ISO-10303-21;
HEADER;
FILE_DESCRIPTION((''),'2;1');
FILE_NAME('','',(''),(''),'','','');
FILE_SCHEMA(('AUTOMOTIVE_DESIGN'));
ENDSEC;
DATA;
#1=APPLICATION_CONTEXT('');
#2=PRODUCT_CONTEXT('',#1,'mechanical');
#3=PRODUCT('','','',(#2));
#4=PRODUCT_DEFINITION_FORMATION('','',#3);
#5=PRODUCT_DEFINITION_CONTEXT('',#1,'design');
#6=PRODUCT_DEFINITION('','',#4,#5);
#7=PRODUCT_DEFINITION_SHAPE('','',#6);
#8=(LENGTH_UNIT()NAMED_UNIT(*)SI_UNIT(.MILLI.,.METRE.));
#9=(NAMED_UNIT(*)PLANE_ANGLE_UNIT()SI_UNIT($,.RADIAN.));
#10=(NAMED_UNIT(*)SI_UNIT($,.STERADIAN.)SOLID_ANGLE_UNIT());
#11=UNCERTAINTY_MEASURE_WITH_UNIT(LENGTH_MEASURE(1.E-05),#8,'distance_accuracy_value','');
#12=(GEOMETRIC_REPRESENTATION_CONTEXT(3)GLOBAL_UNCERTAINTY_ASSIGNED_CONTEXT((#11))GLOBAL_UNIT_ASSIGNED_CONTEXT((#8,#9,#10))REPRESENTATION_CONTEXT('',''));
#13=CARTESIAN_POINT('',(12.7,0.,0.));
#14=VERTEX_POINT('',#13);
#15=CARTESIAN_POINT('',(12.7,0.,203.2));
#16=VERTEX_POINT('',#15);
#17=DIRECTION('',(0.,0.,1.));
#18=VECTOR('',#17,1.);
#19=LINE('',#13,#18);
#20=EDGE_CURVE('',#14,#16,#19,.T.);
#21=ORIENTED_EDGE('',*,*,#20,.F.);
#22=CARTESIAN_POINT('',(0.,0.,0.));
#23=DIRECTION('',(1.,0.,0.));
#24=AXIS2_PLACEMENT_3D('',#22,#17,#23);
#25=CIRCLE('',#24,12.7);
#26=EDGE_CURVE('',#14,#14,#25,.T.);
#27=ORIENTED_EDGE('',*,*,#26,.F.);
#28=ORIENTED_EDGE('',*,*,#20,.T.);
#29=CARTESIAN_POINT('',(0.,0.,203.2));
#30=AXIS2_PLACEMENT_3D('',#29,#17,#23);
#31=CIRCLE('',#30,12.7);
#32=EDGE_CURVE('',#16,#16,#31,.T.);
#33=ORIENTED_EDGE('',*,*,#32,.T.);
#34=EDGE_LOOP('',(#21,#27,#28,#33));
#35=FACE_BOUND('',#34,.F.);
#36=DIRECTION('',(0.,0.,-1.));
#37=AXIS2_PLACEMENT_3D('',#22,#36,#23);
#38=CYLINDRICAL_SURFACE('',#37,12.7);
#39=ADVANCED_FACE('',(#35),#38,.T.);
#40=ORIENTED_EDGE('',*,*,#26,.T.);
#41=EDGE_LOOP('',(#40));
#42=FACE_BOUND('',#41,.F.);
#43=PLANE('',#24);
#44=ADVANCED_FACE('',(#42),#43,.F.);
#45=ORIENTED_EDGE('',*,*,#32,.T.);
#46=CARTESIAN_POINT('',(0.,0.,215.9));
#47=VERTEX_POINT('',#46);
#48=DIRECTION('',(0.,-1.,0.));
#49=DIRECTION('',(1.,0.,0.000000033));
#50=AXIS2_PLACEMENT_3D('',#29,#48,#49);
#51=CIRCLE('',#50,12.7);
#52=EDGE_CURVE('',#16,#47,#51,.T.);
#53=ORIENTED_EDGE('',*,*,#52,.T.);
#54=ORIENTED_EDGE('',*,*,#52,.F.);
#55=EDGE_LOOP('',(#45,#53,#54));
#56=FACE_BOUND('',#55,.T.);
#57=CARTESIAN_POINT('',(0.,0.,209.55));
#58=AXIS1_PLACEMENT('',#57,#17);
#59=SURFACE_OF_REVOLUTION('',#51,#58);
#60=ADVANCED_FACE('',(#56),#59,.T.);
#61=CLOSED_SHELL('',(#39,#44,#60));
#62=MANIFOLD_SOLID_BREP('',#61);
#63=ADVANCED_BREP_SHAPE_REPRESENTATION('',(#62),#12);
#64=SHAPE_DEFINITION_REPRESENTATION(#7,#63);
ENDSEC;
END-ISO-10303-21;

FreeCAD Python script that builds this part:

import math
import FreeCAD as App
import Part
import Sketcher
Q = App.Units.Quantity

doc = App.newDocument("Part")
params = doc.addObject("Spreadsheet::Sheet", "Params")
for row, (alias, value) in enumerate([
    ("sketch1_diameter", "1 in"),
    ("pad1_length", "8 in"),
    ("sketch2_radius", "0.5 in"),
    ("revolution_angle", "360 deg"),
], start=1):
    params.set(f"A{row}", alias)
    params.set(f"B{row}", "=" + value)
    params.setAlias(f"B{row}", alias)

body = doc.addObject("PartDesign::Body", "Body")

# Sketch on XY plane
sketch1 = body.newObject("Sketcher::SketchObject", "Sketch")
sketch1.AttachmentSupport = (doc.getObject("XY_Plane"), [""])
sketch1.MapMode = "FlatFace"
sketch1.addGeometry(Part.Circle(App.Vector(0, 0, 0), App.Vector(0, 0, 1), 13), False)
sketch1.addConstraint([
    Sketcher.Constraint("Coincident", 0, 3, -1, 1),
    Sketcher.Constraint("Diameter", 0, Q("1 in")),
])
sketch1.setExpression("Constraints[1]", "Params.sketch1_diameter")
pad1 = body.newObject("PartDesign::Pad", "Pad")
pad1.Profile = sketch1
pad1.setExpression("Length", "Params.pad1_length")

# Sketch on XZ plane
sketch2 = body.newObject("Sketcher::SketchObject", "Sketch001")
sketch2.AttachmentSupport = (doc.getObject("XZ_Plane"), [""])
sketch2.MapMode = "FlatFace"
sketch2.addGeometry([
    Part.LineSegment(App.Vector(0, 216, 0), App.Vector(0, 203, 0)),
    Part.LineSegment(App.Vector(0, 203, 0), App.Vector(13, 203, 0)),
    Part.ArcOfCircle(Part.Circle(App.Vector(0, 203, 0), App.Vector(0, 0, 1), 13), math.radians(0), math.radians(90)),
], False)
sketch2.addConstraint([
    Sketcher.Constraint("Coincident", 0, 2, 1, 1),
    Sketcher.Constraint("Coincident", 1, 2, 2, 1),
    Sketcher.Constraint("Coincident", 2, 2, 0, 1),
    Sketcher.Constraint("Vertical", 0),
    Sketcher.Constraint("Horizontal", 1),
    Sketcher.Constraint("Coincident", 0, 2, 2, 3),
    Sketcher.Constraint("PointOnObject", 2, 3, -2),
    Sketcher.Constraint("Radius", 2, Q("0.5 in")),
    Sketcher.Constraint("DistanceY", -1, 1, 2, 3, Q("8 in")),
])
sketch2.setExpression("Constraints[7]", "Params.sketch2_radius")
revolution = body.newObject("PartDesign::Revolution", "Revolution")
revolution.Profile = sketch2
revolution.ReferenceAxis = (sketch2, ["V_Axis"])
revolution.setExpression("Angle", "Params.revolution_angle")

doc.recompute()
